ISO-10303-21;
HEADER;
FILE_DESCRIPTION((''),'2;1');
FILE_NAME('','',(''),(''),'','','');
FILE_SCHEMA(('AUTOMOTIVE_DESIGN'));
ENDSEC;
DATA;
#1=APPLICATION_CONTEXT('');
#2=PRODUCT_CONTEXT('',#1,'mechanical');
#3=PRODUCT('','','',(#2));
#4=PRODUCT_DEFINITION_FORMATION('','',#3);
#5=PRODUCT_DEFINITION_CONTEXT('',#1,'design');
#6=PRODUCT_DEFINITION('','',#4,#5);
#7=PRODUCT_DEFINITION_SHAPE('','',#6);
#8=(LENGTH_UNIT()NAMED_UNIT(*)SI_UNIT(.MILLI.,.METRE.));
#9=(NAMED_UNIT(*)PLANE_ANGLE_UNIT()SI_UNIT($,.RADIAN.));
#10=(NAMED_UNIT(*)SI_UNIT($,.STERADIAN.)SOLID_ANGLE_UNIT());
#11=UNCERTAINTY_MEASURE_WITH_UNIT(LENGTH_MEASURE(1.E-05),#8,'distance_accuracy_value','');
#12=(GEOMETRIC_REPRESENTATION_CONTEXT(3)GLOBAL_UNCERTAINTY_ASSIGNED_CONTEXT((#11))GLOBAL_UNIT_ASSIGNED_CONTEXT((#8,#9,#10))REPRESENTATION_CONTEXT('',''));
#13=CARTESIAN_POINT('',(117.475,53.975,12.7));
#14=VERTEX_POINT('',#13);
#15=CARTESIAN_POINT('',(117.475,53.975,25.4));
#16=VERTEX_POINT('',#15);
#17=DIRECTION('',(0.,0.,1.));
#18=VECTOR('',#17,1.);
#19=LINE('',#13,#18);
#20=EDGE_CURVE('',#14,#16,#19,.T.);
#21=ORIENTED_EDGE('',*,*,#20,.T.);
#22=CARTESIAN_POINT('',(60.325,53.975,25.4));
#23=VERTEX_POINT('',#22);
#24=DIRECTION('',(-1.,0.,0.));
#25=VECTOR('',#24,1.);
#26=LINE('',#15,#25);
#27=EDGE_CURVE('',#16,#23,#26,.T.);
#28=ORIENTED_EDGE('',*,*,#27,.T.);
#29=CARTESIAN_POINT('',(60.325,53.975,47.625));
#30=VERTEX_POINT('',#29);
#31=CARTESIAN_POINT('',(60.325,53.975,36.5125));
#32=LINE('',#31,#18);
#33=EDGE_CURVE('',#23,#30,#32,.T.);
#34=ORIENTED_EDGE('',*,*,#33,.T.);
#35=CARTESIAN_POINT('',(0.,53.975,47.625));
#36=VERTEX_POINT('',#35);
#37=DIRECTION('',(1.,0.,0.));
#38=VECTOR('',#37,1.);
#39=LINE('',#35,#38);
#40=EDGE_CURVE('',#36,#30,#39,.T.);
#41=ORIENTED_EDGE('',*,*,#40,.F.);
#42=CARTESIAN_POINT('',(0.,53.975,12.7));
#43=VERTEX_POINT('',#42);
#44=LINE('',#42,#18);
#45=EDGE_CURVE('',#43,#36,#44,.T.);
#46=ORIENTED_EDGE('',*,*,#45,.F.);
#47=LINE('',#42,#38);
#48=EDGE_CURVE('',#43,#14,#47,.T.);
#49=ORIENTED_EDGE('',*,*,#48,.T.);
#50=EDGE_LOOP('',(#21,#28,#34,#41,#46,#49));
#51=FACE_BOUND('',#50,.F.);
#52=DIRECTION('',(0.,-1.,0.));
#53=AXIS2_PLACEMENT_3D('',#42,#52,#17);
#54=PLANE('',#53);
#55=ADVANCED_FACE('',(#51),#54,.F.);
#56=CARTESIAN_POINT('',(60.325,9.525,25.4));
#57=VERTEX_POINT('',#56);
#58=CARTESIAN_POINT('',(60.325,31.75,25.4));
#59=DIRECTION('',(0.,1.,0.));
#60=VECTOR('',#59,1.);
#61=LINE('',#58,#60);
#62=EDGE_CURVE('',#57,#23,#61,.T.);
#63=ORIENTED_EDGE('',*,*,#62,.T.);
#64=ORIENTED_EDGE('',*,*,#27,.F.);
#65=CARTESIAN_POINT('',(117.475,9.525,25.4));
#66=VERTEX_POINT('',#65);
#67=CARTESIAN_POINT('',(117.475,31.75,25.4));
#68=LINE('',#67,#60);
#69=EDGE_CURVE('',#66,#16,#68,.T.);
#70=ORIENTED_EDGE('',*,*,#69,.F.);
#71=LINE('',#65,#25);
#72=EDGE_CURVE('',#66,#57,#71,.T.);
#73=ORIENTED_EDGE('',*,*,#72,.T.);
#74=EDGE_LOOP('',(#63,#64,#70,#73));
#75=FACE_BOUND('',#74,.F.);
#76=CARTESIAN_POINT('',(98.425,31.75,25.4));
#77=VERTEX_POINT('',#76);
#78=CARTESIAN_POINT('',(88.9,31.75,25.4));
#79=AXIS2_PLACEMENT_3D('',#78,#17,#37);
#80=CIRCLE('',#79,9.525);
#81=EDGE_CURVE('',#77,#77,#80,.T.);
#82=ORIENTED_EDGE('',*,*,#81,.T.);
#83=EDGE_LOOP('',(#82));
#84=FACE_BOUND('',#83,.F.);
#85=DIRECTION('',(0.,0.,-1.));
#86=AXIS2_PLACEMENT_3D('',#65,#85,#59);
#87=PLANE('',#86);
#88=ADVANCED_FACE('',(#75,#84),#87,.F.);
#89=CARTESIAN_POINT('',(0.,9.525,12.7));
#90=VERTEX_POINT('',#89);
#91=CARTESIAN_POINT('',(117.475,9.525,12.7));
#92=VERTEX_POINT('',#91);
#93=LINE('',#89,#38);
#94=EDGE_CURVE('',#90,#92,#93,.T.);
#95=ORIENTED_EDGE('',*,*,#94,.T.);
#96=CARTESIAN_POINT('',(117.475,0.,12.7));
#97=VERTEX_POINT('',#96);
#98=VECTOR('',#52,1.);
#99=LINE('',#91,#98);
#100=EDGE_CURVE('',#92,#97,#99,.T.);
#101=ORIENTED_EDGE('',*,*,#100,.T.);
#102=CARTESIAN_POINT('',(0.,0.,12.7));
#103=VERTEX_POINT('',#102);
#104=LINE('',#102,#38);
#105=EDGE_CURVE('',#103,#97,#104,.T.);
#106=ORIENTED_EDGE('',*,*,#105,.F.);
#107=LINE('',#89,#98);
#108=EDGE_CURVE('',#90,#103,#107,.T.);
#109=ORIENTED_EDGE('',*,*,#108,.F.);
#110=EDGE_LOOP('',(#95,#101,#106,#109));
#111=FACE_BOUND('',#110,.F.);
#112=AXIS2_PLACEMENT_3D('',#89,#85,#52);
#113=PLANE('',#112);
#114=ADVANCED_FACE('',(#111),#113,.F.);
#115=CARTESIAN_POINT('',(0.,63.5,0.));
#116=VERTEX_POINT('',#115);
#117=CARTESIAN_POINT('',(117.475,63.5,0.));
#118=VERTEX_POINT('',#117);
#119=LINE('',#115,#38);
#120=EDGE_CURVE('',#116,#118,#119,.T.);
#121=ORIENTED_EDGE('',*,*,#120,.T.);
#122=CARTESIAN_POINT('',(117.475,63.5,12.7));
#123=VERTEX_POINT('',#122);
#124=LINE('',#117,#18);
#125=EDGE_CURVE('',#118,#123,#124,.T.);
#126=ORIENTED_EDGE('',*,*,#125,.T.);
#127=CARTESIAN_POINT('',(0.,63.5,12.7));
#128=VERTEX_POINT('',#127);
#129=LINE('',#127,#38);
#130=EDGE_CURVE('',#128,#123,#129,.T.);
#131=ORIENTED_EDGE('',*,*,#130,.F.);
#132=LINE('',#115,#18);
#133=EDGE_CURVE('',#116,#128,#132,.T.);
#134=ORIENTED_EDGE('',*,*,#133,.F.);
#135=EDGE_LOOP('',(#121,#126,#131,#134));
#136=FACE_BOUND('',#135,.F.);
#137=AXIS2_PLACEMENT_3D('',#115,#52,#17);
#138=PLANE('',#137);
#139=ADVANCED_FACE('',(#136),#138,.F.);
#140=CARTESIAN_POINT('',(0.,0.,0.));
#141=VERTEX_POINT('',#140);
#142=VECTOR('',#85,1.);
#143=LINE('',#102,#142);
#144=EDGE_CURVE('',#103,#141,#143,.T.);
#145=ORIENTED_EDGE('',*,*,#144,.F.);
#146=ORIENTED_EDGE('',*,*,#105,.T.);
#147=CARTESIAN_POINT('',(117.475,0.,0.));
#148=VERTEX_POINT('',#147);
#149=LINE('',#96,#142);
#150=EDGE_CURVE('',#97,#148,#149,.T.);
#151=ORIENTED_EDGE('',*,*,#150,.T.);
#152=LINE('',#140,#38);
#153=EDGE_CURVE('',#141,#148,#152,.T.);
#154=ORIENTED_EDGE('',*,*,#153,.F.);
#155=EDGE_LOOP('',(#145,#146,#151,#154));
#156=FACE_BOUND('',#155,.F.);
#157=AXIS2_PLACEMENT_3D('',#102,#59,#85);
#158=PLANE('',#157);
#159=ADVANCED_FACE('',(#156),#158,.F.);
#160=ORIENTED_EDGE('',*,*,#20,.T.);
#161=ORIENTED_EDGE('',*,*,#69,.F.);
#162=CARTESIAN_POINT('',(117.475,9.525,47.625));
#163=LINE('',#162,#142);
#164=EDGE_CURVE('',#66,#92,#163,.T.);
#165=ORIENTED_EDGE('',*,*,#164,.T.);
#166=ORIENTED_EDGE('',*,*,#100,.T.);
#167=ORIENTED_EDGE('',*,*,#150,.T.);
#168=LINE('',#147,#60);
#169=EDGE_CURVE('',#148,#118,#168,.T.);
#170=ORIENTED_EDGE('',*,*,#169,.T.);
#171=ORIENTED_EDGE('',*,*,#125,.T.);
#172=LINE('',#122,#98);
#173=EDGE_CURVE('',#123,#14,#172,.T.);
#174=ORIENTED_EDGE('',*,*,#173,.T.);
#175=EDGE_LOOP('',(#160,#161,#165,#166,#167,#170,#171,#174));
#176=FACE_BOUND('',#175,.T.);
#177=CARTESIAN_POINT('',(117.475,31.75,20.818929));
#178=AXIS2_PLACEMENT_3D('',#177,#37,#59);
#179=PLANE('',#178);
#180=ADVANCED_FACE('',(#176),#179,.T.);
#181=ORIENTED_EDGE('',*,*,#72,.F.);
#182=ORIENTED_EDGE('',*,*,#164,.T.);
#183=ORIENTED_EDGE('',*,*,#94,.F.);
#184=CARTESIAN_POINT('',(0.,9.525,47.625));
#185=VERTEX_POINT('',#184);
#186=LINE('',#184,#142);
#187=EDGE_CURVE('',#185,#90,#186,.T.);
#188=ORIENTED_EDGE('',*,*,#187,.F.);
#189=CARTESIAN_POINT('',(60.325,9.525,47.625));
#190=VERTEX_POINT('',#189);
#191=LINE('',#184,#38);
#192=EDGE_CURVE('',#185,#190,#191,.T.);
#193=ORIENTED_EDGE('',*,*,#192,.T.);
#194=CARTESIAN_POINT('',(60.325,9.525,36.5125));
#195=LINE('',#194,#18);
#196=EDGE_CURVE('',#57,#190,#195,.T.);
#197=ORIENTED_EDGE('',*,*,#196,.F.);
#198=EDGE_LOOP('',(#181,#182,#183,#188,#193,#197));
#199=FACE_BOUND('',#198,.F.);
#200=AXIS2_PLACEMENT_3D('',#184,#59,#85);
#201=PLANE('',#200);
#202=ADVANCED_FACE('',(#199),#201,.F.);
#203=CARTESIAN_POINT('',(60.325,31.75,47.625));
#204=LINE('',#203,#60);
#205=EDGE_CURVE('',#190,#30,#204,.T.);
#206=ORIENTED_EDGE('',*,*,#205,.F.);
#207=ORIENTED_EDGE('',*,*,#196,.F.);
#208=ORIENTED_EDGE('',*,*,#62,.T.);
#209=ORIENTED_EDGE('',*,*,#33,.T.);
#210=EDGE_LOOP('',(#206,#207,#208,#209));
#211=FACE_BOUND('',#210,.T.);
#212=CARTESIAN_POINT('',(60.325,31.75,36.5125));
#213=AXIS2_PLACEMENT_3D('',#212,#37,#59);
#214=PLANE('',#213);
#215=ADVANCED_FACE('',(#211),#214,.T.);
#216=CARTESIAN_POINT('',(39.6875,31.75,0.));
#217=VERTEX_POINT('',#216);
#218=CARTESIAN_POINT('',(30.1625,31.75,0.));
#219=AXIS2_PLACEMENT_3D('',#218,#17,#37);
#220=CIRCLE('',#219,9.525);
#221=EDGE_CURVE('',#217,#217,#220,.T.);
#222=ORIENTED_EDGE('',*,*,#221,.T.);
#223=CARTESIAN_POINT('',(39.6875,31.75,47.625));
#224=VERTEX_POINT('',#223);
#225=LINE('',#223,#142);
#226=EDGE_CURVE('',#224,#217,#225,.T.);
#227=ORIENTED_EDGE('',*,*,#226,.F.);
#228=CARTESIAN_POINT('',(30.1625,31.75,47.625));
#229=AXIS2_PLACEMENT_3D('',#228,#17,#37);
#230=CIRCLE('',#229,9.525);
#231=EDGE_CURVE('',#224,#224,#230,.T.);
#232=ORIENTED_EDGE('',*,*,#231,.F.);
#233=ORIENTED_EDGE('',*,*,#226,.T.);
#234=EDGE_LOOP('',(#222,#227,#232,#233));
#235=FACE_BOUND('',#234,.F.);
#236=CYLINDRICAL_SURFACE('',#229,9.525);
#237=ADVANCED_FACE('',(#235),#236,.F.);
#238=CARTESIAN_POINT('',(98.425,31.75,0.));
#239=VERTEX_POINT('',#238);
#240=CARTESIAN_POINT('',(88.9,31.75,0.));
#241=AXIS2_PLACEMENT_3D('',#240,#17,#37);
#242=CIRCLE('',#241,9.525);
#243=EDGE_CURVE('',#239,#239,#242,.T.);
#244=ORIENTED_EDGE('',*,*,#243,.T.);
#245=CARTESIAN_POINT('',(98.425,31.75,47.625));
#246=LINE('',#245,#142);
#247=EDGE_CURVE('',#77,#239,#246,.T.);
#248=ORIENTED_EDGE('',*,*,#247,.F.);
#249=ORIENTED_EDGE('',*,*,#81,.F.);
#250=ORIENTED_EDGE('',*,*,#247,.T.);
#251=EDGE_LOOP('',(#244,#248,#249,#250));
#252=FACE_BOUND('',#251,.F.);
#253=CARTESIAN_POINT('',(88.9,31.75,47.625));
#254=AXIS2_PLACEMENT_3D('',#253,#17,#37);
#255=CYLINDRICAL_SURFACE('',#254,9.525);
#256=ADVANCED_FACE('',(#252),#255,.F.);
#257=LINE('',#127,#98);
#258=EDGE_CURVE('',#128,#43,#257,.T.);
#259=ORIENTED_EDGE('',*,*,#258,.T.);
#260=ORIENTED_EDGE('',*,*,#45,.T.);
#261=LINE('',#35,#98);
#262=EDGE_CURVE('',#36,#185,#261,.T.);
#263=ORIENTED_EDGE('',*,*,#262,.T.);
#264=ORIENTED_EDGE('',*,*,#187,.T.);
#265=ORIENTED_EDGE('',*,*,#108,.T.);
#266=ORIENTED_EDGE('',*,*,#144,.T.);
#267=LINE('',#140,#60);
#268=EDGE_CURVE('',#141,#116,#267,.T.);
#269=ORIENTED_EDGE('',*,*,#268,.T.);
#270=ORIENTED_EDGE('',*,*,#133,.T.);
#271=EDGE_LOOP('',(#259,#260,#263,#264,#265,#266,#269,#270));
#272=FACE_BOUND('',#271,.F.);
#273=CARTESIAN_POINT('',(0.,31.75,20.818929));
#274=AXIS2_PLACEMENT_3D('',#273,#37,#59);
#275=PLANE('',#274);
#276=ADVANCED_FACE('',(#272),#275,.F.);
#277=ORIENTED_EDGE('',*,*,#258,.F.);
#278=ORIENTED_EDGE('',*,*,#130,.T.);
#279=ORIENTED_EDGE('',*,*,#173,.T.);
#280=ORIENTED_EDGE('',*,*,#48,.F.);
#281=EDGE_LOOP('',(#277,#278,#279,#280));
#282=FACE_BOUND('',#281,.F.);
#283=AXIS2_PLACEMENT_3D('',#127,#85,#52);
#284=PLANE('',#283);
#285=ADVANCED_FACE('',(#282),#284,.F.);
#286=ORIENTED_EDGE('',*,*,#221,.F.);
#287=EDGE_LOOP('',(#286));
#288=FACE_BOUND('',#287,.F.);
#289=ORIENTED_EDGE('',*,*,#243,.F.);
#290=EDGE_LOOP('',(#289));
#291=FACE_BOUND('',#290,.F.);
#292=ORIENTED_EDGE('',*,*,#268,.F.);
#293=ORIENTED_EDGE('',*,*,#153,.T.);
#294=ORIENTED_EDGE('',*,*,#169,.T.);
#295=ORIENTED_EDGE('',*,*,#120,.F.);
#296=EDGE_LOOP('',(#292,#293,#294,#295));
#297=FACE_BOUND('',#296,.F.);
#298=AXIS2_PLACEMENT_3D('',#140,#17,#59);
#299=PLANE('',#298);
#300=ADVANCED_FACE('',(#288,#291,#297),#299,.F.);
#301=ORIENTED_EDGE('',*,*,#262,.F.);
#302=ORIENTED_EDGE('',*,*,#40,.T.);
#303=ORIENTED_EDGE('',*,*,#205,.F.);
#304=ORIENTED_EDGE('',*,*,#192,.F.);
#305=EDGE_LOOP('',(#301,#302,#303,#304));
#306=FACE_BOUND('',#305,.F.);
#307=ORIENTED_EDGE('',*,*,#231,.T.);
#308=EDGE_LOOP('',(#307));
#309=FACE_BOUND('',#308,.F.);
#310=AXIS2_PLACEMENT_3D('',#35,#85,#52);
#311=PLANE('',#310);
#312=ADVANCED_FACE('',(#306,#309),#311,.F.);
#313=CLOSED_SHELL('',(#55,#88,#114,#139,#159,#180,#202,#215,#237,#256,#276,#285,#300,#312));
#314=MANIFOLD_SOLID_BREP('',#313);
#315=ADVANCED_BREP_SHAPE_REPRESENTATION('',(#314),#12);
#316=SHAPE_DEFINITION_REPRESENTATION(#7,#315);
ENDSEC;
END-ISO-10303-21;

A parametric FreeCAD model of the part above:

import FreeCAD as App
import Part
import Sketcher
Q = App.Units.Quantity

doc = App.newDocument("Part")
body = doc.addObject("PartDesign::Body", "Body")

# Sketch on YZ plane
sketch1 = body.newObject("Sketcher::SketchObject", "Sketch")
sketch1.AttachmentSupport = (doc.getObject("YZ_Plane"), [""])
sketch1.MapMode = "FlatFace"
sketch1.addGeometry([
    Part.LineSegment(App.Vector(0, 13, 0), App.Vector(0, 0, 0)),  # 0
    Part.LineSegment(App.Vector(0, 0, 0), App.Vector(64, 0, 0)),  # 1
    Part.LineSegment(App.Vector(64, 0, 0), App.Vector(64, 13, 0)),  # 2
    Part.LineSegment(App.Vector(64, 13, 0), App.Vector(54, 13, 0)),  # 3
    Part.LineSegment(App.Vector(54, 13, 0), App.Vector(54, 48, 0)),  # 4
    Part.LineSegment(App.Vector(54, 48, 0), App.Vector(10, 48, 0)),  # 5
    Part.LineSegment(App.Vector(10, 48, 0), App.Vector(10, 13, 0)),  # 6
    Part.LineSegment(App.Vector(10, 13, 0), App.Vector(0, 13, 0)),  # 7
], False)
sketch1.addConstraint([
    Sketcher.Constraint("Coincident", 0, 2, 1, 1),
    Sketcher.Constraint("Coincident", 1, 2, 2, 1),
    Sketcher.Constraint("Coincident", 2, 2, 3, 1),
    Sketcher.Constraint("Coincident", 3, 2, 4, 1),
    Sketcher.Constraint("Coincident", 4, 2, 5, 1),
    Sketcher.Constraint("Coincident", 5, 2, 6, 1),
    Sketcher.Constraint("Coincident", 6, 2, 7, 1),
    Sketcher.Constraint("Coincident", 7, 2, 0, 1),
    Sketcher.Constraint("Vertical", 0),
    Sketcher.Constraint("Horizontal", 1),
    Sketcher.Constraint("Vertical", 2),
    Sketcher.Constraint("Horizontal", 3),
    Sketcher.Constraint("Vertical", 4),
    Sketcher.Constraint("Horizontal", 5),
    Sketcher.Constraint("Vertical", 6),
    Sketcher.Constraint("Horizontal", 7),
    Sketcher.Constraint("Coincident", 0, 2, -1, 1),
    Sketcher.Constraint("Horizontal", 3, 2, 6, 2),
    Sketcher.Constraint("Equal", 3, 7),
    Sketcher.Constraint("DistanceX", 1, 1, 1, 2, Q("2.5 in")),
    Sketcher.Constraint("DistanceY", 0, 2, 0, 1, Q("0.5 in")),
    Sketcher.Constraint("DistanceX", 5, 2, 5, 1, Q("1.75 in")),
    Sketcher.Constraint("DistanceY", 4, 1, 4, 2, Q("1.375 in")),
])
pad1 = body.newObject("PartDesign::Pad", "Pad")
pad1.Profile = sketch1
pad1.Length = Q("4.625 in")

# Sketch on XY plane
sketch2 = body.newObject("Sketcher::SketchObject", "Sketch001")
sketch2.AttachmentSupport = (doc.getObject("XY_Plane"), [""])
sketch2.MapMode = "FlatFace"
sketch2.AttachmentOffset = App.Placement(App.Vector(0, 0, 1.875 * 25.4), App.Rotation())
sketch2.addGeometry([
    Part.Circle(App.Vector(30, 32, 0), App.Vector(0, 0, 1), 10),
    Part.Circle(App.Vector(89, 32, 0), App.Vector(0, 0, 1), 10),
], False)
sketch2.addConstraint([
    Sketcher.Constraint("Equal", 0, 1),
    Sketcher.Constraint("Horizontal", 0, 3, 1, 3),
    Sketcher.Constraint("Diameter", 0, Q("0.75 in")),
    Sketcher.Constraint("DistanceX", -1, 1, 1, 3, Q("3.5 in")),
    Sketcher.Constraint("DistanceY", -1, 1, 0, 3, Q("1.25 in")),
    Sketcher.Constraint("DistanceX", -1, 1, 0, 3, Q("1.1875 in")),
])
pocket1 = body.newObject("PartDesign::Pocket", "Pocket")
pocket1.Profile = sketch2
pocket1.Length = Q("6.35 in")

# Sketch on YZ plane
sketch3 = body.newObject("Sketcher::SketchObject", "Sketch002")
sketch3.AttachmentSupport = (doc.getObject("YZ_Plane"), [""])
sketch3.MapMode = "FlatFace"
sketch3.AttachmentOffset = App.Placement(App.Vector(0, 0, 4.625 * 25.4), App.Rotation())
sketch3.addGeometry([
    Part.LineSegment(App.Vector(10, 48, 0), App.Vector(10, 25, 0)),
    Part.LineSegment(App.Vector(10, 25, 0), App.Vector(54, 25, 0)),
    Part.LineSegment(App.Vector(54, 25, 0), App.Vector(54, 48, 0)),
    Part.LineSegment(App.Vector(54, 48, 0), App.Vector(10, 48, 0)),
], False)
sketch3.addConstraint([
    Sketcher.Constraint("Coincident", 0, 2, 1, 1),
    Sketcher.Constraint("Coincident", 1, 2, 2, 1),
    Sketcher.Constraint("Coincident", 2, 2, 3, 1),
    Sketcher.Constraint("Coincident", 3, 2, 0, 1),
    Sketcher.Constraint("Vertical", 0),
    Sketcher.Constraint("Horizontal", 1),
    Sketcher.Constraint("Vertical", 2),
    Sketcher.Constraint("Horizontal", 3),
    Sketcher.Constraint("DistanceY", -1, 1, 0, 2, Q("1 in")),
    Sketcher.Constraint("DistanceX", 1, 1, 1, 2, Q("1.75 in")),
    Sketcher.Constraint("DistanceY", 0, 2, 0, 1, Q("0.875 in")),
    Sketcher.Constraint("DistanceX", -1, 1, 0, 2, Q("0.375 in")),
])
pocket2 = body.newObject("PartDesign::Pocket", "Pocket001")
pocket2.Profile = sketch3
pocket2.Length = Q("2.25 in")

doc.recompute()
